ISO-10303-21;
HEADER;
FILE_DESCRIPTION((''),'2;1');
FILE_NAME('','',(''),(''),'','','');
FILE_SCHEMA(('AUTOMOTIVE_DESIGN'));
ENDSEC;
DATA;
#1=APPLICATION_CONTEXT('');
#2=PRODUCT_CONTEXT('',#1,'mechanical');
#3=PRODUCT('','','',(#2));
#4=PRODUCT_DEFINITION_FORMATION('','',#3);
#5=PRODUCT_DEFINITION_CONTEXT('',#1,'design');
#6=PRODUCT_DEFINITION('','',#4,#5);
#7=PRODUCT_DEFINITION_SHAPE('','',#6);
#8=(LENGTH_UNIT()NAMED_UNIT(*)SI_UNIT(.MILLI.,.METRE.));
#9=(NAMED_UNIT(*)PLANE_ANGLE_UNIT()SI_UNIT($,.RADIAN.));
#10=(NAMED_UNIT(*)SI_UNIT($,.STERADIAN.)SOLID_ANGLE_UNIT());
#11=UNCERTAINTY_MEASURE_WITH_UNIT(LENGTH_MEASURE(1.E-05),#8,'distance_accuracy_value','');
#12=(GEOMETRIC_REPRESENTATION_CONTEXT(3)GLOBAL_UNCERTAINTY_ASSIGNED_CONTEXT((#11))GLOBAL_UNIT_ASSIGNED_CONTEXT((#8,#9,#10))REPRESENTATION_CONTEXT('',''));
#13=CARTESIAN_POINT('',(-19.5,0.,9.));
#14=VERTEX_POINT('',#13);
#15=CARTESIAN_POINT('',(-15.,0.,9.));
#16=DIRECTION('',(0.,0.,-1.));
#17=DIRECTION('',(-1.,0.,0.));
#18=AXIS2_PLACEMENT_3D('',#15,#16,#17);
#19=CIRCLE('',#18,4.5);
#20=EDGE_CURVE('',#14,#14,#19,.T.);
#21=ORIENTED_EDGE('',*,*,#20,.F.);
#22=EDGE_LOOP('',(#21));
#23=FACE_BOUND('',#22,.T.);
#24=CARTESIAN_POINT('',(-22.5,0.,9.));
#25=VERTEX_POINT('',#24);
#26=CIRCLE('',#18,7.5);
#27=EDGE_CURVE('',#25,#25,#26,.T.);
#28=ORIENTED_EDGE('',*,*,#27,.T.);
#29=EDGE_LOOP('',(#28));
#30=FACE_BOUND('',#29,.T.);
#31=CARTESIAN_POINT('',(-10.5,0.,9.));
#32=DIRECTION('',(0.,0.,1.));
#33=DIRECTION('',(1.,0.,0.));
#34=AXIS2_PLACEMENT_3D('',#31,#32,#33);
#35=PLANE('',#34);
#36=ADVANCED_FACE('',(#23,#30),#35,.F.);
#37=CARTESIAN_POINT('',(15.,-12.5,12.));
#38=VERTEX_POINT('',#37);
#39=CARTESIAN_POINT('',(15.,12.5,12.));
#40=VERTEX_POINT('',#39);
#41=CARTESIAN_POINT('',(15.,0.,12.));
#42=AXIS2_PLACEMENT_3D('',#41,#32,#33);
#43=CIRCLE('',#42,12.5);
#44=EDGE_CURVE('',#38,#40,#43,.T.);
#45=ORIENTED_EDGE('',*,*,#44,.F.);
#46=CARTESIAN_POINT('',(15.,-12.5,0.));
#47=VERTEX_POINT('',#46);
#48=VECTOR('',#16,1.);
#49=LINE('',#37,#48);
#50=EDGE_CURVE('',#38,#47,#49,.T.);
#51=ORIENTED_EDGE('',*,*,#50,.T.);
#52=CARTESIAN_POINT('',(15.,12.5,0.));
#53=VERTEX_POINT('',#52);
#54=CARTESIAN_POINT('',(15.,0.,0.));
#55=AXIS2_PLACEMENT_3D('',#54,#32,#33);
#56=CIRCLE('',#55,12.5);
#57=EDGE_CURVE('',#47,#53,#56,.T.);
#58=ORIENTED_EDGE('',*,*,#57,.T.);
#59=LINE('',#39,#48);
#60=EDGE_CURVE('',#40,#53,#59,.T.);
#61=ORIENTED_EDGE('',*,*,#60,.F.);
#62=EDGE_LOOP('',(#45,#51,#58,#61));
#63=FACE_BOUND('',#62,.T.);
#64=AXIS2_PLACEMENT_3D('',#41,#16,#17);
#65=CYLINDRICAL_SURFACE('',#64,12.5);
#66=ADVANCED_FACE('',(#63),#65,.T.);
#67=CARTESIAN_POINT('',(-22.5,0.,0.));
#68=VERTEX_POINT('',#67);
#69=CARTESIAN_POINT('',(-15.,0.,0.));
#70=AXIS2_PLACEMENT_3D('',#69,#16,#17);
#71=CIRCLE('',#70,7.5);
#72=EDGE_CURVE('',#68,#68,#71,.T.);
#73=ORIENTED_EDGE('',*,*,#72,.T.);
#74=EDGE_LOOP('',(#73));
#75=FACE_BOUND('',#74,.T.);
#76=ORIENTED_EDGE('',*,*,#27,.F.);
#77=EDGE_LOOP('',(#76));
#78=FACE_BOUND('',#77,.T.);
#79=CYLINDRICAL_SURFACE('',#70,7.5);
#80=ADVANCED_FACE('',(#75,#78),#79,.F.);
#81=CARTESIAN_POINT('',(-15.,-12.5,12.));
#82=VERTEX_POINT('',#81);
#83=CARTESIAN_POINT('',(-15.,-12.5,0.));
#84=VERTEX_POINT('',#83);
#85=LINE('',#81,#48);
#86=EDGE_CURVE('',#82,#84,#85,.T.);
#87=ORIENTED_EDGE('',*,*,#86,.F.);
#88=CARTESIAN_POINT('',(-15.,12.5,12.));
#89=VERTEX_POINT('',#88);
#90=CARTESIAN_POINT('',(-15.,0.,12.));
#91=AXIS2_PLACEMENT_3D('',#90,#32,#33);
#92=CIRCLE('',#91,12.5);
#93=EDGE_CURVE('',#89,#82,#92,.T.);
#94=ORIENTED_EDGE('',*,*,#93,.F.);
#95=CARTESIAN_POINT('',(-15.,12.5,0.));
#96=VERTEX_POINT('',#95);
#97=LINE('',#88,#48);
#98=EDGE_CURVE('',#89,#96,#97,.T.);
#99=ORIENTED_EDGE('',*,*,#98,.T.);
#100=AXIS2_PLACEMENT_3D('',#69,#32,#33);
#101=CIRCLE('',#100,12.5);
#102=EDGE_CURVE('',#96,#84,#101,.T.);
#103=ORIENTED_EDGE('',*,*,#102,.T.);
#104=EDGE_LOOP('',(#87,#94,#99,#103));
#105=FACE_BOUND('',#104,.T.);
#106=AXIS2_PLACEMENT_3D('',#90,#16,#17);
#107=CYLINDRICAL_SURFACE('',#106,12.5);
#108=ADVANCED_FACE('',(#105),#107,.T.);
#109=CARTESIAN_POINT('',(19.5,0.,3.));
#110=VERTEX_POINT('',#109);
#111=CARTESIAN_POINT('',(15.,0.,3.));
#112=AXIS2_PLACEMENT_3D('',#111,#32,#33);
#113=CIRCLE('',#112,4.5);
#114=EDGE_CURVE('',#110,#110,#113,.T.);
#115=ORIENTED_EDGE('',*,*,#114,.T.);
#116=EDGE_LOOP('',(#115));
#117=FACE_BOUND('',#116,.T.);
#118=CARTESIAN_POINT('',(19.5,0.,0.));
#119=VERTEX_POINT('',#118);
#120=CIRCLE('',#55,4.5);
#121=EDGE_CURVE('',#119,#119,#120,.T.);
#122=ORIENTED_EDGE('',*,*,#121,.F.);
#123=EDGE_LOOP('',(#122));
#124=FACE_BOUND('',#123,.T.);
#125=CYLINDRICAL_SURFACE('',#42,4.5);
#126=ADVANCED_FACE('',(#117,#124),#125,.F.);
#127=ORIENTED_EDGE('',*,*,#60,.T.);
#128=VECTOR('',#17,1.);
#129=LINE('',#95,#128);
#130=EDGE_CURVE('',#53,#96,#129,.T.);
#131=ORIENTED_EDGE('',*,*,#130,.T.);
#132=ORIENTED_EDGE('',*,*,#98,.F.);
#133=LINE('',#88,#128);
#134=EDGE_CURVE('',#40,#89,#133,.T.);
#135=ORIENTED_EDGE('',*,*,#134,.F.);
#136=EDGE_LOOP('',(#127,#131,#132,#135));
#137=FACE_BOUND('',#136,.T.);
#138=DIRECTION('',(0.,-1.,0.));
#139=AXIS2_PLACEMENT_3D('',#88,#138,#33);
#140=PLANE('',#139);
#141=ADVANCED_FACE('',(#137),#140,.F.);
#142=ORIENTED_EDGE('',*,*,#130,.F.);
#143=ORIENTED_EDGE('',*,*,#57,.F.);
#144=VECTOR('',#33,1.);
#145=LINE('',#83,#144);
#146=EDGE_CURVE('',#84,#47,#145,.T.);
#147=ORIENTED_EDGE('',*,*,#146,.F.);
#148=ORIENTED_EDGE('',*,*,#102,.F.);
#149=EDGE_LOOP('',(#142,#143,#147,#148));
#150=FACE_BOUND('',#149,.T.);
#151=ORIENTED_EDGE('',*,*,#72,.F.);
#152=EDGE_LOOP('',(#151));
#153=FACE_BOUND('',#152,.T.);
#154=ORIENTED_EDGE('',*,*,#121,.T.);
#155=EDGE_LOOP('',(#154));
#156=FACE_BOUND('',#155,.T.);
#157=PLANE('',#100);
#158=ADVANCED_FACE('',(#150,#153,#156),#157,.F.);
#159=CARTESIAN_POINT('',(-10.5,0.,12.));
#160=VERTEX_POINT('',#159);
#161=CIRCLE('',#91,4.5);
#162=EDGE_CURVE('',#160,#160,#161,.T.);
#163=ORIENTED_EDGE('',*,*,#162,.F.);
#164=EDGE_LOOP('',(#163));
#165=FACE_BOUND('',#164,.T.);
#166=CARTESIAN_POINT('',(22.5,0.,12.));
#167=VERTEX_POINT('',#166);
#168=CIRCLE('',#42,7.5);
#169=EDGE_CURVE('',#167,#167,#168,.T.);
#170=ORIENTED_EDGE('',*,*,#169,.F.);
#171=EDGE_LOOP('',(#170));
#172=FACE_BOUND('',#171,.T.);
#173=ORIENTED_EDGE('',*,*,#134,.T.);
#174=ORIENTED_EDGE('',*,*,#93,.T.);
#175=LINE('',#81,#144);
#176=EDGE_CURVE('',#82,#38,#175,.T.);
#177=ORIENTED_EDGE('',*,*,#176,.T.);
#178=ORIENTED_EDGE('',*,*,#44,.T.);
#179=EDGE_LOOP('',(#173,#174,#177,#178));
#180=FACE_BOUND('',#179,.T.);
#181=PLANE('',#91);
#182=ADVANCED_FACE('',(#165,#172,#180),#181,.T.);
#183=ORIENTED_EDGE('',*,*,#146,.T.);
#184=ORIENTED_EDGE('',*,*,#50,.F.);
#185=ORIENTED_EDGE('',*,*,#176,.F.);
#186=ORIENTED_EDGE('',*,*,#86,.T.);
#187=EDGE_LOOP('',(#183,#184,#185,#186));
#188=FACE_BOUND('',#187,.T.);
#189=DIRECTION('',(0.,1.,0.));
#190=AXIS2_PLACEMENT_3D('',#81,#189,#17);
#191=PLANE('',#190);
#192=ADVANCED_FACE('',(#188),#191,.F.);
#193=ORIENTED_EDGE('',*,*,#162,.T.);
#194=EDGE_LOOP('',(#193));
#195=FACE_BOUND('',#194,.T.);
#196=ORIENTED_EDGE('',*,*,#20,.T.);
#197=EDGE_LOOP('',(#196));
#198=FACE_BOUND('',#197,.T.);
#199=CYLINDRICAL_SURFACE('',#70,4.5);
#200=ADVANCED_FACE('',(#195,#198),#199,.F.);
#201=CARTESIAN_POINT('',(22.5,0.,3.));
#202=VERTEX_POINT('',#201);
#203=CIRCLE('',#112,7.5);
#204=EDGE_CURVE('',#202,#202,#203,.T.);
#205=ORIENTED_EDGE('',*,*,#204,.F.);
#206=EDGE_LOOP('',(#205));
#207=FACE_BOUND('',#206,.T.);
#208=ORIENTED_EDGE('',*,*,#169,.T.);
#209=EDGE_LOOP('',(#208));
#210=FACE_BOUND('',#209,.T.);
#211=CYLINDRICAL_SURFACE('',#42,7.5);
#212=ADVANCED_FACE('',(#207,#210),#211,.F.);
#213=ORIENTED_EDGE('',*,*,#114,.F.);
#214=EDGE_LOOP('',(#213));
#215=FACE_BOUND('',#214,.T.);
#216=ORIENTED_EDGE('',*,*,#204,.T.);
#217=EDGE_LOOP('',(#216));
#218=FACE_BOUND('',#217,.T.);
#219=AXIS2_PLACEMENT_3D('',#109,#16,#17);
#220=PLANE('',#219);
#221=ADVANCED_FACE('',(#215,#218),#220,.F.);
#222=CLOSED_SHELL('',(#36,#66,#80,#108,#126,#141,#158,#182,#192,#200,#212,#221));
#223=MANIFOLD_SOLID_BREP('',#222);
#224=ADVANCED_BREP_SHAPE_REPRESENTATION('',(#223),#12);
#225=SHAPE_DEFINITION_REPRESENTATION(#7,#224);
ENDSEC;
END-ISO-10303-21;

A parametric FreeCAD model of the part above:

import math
import FreeCAD as App
import Part
import Sketcher
from FreeCAD import Vector
Q = App.Units.Quantity

doc = App.newDocument("Part")
params = doc.addObject("Spreadsheet::Sheet", "Params")
for row, (alias, value) in enumerate([
    ("sketch1_radius", "12.5 mm"),
    ("sketch1_width", "30 mm"),
    ("pad1_length", "12 mm"),
    ("sketch2_diameter", "9 mm"),
    ("hole_diameter", "9 mm"),
    ("hole_depth", "19.75 mm"),
    ("hole_cbore_diameter", "15 mm"),
    ("hole_cbore_depth", "9 mm"),
    ("sketch3_diameter", "9 mm"),
    ("hole2_diameter", "9 mm"),
    ("hole2_depth", "19.75 mm"),
    ("hole2_cbore_diameter", "15 mm"),
    ("hole2_cbore_depth", "9 mm"),
], start=1):
    params.set(f"A{row}", alias)
    params.set(f"B{row}", "=" + value)
    params.setAlias(f"B{row}", alias)

body = doc.addObject("PartDesign::Body", "Body")

# Sketch on XY plane
sketch1 = doc.addObject("Sketcher::SketchObject", "Sketch")
body.addObject(sketch1)
sketch1.AttachmentSupport = (doc.XY_Plane, [""])
sketch1.MapMode = "FlatFace"
sketch1.addGeometry(Part.LineSegment(Vector(15, 12, 0), Vector(-15, 12, 0)), False)
sketch1.addGeometry(Part.ArcOfCircle(Part.Circle(Vector(-15, 0, 0), Vector(0, 0, 1), 12), math.radians(90), math.radians(270)), False)
sketch1.addGeometry(Part.LineSegment(Vector(-15, -12, 0), Vector(15, -12, 0)), False)
sketch1.addGeometry(Part.ArcOfCircle(Part.Circle(Vector(15, 0, 0), Vector(0, 0, 1), 12), math.radians(-90), math.radians(90)), False)
sketch1.addConstraint(Sketcher.Constraint("Tangent", 0, 2, 1, 1))
sketch1.addConstraint(Sketcher.Constraint("Tangent", 1, 2, 2, 1))
sketch1.addConstraint(Sketcher.Constraint("Tangent", 2, 2, 3, 1))
sketch1.addConstraint(Sketcher.Constraint("Tangent", 3, 2, 0, 1))
sketch1.addConstraint(Sketcher.Constraint("Horizontal", 0))
sketch1.addConstraint(Sketcher.Constraint("Horizontal", 2))
sketch1.addConstraint(Sketcher.Constraint("Symmetric", 1, 3, 3, 3, -1, 1))
sketch1.addConstraint(Sketcher.Constraint("Radius", 1, Q("12.5 mm")))
sketch1.addConstraint(Sketcher.Constraint("DistanceX", 0, 2, 0, 1, Q("30 mm")))
sketch1.setExpression("Constraints[7]", "Params.sketch1_radius")
sketch1.setExpression("Constraints[8]", "Params.sketch1_width")
pad1 = doc.addObject("PartDesign::Pad", "Pad")
body.addObject(pad1)
pad1.Profile = sketch1
pad1.setExpression("Length", "Params.pad1_length")

# Sketch on XY plane
sketch2 = doc.addObject("Sketcher::SketchObject", "Sketch001")
body.addObject(sketch2)
sketch2.AttachmentSupport = (doc.XY_Plane, [""])
sketch2.MapMode = "FlatFace"
sketch2.addGeometry(Part.Circle(Vector(-15, 0, 0), Vector(0, 0, 1), 4.5), False)
sketch2.addConstraint(Sketcher.Constraint("PointOnObject", 0, 3, -1))
sketch2.addConstraint(Sketcher.Constraint("Diameter", 0, Q("9 mm")))
sketch2.addConstraint(Sketcher.Constraint("DistanceX", 0, 3, -1, 1, Q("15 mm")))
sketch2.setExpression("Constraints[1]", "Params.sketch2_diameter")
doc.recompute()
hole = doc.addObject("PartDesign::Hole", "Hole")
body.addObject(hole)
hole.Profile = sketch2
hole.ThreadType = "None"
hole.setExpression("Diameter", "Params.hole_diameter")
hole.DepthType = "Dimension"
hole.setExpression("Depth", "Params.hole_depth")
hole.DrillPoint = "Angled"
hole.DrillPointAngle = 118
hole.HoleCutType = "Counterbore"
hole.setExpression("HoleCutDiameter", "Params.hole_cbore_diameter")
hole.setExpression("HoleCutDepth", "Params.hole_cbore_depth")
hole.Reversed = True

# Sketch on XY plane
sketch3 = doc.addObject("Sketcher::SketchObject", "Sketch002")
body.addObject(sketch3)
sketch3.AttachmentSupport = (doc.XY_Plane, [""])
sketch3.MapMode = "FlatFace"
sketch3.AttachmentOffset = App.Placement(Vector(0, 0, 12), App.Rotation())
sketch3.addGeometry(Part.Circle(Vector(15, 0, 0), Vector(0, 0, 1), 4.5), False)
sketch3.addConstraint(Sketcher.Constraint("PointOnObject", 0, 3, -1))
sketch3.addConstraint(Sketcher.Constraint("Diameter", 0, Q("9 mm")))
sketch3.addConstraint(Sketcher.Constraint("DistanceX", -1, 1, 0, 3, Q("15 mm")))
sketch3.setExpression("Constraints[1]", "Params.sketch3_diameter")
doc.recompute()
hole2 = doc.addObject("PartDesign::Hole", "Hole001")
body.addObject(hole2)
hole2.Profile = sketch3
hole2.ThreadType = "None"
hole2.setExpression("Diameter", "Params.hole2_diameter")
hole2.DepthType = "Dimension"
hole2.setExpression("Depth", "Params.hole2_depth")
hole2.DrillPoint = "Angled"
hole2.DrillPointAngle = 118
hole2.HoleCutType = "Counterbore"
hole2.setExpression("HoleCutDiameter", "Params.hole2_cbore_diameter")
hole2.setExpression("HoleCutDepth", "Params.hole2_cbore_depth")

doc.recompute()
